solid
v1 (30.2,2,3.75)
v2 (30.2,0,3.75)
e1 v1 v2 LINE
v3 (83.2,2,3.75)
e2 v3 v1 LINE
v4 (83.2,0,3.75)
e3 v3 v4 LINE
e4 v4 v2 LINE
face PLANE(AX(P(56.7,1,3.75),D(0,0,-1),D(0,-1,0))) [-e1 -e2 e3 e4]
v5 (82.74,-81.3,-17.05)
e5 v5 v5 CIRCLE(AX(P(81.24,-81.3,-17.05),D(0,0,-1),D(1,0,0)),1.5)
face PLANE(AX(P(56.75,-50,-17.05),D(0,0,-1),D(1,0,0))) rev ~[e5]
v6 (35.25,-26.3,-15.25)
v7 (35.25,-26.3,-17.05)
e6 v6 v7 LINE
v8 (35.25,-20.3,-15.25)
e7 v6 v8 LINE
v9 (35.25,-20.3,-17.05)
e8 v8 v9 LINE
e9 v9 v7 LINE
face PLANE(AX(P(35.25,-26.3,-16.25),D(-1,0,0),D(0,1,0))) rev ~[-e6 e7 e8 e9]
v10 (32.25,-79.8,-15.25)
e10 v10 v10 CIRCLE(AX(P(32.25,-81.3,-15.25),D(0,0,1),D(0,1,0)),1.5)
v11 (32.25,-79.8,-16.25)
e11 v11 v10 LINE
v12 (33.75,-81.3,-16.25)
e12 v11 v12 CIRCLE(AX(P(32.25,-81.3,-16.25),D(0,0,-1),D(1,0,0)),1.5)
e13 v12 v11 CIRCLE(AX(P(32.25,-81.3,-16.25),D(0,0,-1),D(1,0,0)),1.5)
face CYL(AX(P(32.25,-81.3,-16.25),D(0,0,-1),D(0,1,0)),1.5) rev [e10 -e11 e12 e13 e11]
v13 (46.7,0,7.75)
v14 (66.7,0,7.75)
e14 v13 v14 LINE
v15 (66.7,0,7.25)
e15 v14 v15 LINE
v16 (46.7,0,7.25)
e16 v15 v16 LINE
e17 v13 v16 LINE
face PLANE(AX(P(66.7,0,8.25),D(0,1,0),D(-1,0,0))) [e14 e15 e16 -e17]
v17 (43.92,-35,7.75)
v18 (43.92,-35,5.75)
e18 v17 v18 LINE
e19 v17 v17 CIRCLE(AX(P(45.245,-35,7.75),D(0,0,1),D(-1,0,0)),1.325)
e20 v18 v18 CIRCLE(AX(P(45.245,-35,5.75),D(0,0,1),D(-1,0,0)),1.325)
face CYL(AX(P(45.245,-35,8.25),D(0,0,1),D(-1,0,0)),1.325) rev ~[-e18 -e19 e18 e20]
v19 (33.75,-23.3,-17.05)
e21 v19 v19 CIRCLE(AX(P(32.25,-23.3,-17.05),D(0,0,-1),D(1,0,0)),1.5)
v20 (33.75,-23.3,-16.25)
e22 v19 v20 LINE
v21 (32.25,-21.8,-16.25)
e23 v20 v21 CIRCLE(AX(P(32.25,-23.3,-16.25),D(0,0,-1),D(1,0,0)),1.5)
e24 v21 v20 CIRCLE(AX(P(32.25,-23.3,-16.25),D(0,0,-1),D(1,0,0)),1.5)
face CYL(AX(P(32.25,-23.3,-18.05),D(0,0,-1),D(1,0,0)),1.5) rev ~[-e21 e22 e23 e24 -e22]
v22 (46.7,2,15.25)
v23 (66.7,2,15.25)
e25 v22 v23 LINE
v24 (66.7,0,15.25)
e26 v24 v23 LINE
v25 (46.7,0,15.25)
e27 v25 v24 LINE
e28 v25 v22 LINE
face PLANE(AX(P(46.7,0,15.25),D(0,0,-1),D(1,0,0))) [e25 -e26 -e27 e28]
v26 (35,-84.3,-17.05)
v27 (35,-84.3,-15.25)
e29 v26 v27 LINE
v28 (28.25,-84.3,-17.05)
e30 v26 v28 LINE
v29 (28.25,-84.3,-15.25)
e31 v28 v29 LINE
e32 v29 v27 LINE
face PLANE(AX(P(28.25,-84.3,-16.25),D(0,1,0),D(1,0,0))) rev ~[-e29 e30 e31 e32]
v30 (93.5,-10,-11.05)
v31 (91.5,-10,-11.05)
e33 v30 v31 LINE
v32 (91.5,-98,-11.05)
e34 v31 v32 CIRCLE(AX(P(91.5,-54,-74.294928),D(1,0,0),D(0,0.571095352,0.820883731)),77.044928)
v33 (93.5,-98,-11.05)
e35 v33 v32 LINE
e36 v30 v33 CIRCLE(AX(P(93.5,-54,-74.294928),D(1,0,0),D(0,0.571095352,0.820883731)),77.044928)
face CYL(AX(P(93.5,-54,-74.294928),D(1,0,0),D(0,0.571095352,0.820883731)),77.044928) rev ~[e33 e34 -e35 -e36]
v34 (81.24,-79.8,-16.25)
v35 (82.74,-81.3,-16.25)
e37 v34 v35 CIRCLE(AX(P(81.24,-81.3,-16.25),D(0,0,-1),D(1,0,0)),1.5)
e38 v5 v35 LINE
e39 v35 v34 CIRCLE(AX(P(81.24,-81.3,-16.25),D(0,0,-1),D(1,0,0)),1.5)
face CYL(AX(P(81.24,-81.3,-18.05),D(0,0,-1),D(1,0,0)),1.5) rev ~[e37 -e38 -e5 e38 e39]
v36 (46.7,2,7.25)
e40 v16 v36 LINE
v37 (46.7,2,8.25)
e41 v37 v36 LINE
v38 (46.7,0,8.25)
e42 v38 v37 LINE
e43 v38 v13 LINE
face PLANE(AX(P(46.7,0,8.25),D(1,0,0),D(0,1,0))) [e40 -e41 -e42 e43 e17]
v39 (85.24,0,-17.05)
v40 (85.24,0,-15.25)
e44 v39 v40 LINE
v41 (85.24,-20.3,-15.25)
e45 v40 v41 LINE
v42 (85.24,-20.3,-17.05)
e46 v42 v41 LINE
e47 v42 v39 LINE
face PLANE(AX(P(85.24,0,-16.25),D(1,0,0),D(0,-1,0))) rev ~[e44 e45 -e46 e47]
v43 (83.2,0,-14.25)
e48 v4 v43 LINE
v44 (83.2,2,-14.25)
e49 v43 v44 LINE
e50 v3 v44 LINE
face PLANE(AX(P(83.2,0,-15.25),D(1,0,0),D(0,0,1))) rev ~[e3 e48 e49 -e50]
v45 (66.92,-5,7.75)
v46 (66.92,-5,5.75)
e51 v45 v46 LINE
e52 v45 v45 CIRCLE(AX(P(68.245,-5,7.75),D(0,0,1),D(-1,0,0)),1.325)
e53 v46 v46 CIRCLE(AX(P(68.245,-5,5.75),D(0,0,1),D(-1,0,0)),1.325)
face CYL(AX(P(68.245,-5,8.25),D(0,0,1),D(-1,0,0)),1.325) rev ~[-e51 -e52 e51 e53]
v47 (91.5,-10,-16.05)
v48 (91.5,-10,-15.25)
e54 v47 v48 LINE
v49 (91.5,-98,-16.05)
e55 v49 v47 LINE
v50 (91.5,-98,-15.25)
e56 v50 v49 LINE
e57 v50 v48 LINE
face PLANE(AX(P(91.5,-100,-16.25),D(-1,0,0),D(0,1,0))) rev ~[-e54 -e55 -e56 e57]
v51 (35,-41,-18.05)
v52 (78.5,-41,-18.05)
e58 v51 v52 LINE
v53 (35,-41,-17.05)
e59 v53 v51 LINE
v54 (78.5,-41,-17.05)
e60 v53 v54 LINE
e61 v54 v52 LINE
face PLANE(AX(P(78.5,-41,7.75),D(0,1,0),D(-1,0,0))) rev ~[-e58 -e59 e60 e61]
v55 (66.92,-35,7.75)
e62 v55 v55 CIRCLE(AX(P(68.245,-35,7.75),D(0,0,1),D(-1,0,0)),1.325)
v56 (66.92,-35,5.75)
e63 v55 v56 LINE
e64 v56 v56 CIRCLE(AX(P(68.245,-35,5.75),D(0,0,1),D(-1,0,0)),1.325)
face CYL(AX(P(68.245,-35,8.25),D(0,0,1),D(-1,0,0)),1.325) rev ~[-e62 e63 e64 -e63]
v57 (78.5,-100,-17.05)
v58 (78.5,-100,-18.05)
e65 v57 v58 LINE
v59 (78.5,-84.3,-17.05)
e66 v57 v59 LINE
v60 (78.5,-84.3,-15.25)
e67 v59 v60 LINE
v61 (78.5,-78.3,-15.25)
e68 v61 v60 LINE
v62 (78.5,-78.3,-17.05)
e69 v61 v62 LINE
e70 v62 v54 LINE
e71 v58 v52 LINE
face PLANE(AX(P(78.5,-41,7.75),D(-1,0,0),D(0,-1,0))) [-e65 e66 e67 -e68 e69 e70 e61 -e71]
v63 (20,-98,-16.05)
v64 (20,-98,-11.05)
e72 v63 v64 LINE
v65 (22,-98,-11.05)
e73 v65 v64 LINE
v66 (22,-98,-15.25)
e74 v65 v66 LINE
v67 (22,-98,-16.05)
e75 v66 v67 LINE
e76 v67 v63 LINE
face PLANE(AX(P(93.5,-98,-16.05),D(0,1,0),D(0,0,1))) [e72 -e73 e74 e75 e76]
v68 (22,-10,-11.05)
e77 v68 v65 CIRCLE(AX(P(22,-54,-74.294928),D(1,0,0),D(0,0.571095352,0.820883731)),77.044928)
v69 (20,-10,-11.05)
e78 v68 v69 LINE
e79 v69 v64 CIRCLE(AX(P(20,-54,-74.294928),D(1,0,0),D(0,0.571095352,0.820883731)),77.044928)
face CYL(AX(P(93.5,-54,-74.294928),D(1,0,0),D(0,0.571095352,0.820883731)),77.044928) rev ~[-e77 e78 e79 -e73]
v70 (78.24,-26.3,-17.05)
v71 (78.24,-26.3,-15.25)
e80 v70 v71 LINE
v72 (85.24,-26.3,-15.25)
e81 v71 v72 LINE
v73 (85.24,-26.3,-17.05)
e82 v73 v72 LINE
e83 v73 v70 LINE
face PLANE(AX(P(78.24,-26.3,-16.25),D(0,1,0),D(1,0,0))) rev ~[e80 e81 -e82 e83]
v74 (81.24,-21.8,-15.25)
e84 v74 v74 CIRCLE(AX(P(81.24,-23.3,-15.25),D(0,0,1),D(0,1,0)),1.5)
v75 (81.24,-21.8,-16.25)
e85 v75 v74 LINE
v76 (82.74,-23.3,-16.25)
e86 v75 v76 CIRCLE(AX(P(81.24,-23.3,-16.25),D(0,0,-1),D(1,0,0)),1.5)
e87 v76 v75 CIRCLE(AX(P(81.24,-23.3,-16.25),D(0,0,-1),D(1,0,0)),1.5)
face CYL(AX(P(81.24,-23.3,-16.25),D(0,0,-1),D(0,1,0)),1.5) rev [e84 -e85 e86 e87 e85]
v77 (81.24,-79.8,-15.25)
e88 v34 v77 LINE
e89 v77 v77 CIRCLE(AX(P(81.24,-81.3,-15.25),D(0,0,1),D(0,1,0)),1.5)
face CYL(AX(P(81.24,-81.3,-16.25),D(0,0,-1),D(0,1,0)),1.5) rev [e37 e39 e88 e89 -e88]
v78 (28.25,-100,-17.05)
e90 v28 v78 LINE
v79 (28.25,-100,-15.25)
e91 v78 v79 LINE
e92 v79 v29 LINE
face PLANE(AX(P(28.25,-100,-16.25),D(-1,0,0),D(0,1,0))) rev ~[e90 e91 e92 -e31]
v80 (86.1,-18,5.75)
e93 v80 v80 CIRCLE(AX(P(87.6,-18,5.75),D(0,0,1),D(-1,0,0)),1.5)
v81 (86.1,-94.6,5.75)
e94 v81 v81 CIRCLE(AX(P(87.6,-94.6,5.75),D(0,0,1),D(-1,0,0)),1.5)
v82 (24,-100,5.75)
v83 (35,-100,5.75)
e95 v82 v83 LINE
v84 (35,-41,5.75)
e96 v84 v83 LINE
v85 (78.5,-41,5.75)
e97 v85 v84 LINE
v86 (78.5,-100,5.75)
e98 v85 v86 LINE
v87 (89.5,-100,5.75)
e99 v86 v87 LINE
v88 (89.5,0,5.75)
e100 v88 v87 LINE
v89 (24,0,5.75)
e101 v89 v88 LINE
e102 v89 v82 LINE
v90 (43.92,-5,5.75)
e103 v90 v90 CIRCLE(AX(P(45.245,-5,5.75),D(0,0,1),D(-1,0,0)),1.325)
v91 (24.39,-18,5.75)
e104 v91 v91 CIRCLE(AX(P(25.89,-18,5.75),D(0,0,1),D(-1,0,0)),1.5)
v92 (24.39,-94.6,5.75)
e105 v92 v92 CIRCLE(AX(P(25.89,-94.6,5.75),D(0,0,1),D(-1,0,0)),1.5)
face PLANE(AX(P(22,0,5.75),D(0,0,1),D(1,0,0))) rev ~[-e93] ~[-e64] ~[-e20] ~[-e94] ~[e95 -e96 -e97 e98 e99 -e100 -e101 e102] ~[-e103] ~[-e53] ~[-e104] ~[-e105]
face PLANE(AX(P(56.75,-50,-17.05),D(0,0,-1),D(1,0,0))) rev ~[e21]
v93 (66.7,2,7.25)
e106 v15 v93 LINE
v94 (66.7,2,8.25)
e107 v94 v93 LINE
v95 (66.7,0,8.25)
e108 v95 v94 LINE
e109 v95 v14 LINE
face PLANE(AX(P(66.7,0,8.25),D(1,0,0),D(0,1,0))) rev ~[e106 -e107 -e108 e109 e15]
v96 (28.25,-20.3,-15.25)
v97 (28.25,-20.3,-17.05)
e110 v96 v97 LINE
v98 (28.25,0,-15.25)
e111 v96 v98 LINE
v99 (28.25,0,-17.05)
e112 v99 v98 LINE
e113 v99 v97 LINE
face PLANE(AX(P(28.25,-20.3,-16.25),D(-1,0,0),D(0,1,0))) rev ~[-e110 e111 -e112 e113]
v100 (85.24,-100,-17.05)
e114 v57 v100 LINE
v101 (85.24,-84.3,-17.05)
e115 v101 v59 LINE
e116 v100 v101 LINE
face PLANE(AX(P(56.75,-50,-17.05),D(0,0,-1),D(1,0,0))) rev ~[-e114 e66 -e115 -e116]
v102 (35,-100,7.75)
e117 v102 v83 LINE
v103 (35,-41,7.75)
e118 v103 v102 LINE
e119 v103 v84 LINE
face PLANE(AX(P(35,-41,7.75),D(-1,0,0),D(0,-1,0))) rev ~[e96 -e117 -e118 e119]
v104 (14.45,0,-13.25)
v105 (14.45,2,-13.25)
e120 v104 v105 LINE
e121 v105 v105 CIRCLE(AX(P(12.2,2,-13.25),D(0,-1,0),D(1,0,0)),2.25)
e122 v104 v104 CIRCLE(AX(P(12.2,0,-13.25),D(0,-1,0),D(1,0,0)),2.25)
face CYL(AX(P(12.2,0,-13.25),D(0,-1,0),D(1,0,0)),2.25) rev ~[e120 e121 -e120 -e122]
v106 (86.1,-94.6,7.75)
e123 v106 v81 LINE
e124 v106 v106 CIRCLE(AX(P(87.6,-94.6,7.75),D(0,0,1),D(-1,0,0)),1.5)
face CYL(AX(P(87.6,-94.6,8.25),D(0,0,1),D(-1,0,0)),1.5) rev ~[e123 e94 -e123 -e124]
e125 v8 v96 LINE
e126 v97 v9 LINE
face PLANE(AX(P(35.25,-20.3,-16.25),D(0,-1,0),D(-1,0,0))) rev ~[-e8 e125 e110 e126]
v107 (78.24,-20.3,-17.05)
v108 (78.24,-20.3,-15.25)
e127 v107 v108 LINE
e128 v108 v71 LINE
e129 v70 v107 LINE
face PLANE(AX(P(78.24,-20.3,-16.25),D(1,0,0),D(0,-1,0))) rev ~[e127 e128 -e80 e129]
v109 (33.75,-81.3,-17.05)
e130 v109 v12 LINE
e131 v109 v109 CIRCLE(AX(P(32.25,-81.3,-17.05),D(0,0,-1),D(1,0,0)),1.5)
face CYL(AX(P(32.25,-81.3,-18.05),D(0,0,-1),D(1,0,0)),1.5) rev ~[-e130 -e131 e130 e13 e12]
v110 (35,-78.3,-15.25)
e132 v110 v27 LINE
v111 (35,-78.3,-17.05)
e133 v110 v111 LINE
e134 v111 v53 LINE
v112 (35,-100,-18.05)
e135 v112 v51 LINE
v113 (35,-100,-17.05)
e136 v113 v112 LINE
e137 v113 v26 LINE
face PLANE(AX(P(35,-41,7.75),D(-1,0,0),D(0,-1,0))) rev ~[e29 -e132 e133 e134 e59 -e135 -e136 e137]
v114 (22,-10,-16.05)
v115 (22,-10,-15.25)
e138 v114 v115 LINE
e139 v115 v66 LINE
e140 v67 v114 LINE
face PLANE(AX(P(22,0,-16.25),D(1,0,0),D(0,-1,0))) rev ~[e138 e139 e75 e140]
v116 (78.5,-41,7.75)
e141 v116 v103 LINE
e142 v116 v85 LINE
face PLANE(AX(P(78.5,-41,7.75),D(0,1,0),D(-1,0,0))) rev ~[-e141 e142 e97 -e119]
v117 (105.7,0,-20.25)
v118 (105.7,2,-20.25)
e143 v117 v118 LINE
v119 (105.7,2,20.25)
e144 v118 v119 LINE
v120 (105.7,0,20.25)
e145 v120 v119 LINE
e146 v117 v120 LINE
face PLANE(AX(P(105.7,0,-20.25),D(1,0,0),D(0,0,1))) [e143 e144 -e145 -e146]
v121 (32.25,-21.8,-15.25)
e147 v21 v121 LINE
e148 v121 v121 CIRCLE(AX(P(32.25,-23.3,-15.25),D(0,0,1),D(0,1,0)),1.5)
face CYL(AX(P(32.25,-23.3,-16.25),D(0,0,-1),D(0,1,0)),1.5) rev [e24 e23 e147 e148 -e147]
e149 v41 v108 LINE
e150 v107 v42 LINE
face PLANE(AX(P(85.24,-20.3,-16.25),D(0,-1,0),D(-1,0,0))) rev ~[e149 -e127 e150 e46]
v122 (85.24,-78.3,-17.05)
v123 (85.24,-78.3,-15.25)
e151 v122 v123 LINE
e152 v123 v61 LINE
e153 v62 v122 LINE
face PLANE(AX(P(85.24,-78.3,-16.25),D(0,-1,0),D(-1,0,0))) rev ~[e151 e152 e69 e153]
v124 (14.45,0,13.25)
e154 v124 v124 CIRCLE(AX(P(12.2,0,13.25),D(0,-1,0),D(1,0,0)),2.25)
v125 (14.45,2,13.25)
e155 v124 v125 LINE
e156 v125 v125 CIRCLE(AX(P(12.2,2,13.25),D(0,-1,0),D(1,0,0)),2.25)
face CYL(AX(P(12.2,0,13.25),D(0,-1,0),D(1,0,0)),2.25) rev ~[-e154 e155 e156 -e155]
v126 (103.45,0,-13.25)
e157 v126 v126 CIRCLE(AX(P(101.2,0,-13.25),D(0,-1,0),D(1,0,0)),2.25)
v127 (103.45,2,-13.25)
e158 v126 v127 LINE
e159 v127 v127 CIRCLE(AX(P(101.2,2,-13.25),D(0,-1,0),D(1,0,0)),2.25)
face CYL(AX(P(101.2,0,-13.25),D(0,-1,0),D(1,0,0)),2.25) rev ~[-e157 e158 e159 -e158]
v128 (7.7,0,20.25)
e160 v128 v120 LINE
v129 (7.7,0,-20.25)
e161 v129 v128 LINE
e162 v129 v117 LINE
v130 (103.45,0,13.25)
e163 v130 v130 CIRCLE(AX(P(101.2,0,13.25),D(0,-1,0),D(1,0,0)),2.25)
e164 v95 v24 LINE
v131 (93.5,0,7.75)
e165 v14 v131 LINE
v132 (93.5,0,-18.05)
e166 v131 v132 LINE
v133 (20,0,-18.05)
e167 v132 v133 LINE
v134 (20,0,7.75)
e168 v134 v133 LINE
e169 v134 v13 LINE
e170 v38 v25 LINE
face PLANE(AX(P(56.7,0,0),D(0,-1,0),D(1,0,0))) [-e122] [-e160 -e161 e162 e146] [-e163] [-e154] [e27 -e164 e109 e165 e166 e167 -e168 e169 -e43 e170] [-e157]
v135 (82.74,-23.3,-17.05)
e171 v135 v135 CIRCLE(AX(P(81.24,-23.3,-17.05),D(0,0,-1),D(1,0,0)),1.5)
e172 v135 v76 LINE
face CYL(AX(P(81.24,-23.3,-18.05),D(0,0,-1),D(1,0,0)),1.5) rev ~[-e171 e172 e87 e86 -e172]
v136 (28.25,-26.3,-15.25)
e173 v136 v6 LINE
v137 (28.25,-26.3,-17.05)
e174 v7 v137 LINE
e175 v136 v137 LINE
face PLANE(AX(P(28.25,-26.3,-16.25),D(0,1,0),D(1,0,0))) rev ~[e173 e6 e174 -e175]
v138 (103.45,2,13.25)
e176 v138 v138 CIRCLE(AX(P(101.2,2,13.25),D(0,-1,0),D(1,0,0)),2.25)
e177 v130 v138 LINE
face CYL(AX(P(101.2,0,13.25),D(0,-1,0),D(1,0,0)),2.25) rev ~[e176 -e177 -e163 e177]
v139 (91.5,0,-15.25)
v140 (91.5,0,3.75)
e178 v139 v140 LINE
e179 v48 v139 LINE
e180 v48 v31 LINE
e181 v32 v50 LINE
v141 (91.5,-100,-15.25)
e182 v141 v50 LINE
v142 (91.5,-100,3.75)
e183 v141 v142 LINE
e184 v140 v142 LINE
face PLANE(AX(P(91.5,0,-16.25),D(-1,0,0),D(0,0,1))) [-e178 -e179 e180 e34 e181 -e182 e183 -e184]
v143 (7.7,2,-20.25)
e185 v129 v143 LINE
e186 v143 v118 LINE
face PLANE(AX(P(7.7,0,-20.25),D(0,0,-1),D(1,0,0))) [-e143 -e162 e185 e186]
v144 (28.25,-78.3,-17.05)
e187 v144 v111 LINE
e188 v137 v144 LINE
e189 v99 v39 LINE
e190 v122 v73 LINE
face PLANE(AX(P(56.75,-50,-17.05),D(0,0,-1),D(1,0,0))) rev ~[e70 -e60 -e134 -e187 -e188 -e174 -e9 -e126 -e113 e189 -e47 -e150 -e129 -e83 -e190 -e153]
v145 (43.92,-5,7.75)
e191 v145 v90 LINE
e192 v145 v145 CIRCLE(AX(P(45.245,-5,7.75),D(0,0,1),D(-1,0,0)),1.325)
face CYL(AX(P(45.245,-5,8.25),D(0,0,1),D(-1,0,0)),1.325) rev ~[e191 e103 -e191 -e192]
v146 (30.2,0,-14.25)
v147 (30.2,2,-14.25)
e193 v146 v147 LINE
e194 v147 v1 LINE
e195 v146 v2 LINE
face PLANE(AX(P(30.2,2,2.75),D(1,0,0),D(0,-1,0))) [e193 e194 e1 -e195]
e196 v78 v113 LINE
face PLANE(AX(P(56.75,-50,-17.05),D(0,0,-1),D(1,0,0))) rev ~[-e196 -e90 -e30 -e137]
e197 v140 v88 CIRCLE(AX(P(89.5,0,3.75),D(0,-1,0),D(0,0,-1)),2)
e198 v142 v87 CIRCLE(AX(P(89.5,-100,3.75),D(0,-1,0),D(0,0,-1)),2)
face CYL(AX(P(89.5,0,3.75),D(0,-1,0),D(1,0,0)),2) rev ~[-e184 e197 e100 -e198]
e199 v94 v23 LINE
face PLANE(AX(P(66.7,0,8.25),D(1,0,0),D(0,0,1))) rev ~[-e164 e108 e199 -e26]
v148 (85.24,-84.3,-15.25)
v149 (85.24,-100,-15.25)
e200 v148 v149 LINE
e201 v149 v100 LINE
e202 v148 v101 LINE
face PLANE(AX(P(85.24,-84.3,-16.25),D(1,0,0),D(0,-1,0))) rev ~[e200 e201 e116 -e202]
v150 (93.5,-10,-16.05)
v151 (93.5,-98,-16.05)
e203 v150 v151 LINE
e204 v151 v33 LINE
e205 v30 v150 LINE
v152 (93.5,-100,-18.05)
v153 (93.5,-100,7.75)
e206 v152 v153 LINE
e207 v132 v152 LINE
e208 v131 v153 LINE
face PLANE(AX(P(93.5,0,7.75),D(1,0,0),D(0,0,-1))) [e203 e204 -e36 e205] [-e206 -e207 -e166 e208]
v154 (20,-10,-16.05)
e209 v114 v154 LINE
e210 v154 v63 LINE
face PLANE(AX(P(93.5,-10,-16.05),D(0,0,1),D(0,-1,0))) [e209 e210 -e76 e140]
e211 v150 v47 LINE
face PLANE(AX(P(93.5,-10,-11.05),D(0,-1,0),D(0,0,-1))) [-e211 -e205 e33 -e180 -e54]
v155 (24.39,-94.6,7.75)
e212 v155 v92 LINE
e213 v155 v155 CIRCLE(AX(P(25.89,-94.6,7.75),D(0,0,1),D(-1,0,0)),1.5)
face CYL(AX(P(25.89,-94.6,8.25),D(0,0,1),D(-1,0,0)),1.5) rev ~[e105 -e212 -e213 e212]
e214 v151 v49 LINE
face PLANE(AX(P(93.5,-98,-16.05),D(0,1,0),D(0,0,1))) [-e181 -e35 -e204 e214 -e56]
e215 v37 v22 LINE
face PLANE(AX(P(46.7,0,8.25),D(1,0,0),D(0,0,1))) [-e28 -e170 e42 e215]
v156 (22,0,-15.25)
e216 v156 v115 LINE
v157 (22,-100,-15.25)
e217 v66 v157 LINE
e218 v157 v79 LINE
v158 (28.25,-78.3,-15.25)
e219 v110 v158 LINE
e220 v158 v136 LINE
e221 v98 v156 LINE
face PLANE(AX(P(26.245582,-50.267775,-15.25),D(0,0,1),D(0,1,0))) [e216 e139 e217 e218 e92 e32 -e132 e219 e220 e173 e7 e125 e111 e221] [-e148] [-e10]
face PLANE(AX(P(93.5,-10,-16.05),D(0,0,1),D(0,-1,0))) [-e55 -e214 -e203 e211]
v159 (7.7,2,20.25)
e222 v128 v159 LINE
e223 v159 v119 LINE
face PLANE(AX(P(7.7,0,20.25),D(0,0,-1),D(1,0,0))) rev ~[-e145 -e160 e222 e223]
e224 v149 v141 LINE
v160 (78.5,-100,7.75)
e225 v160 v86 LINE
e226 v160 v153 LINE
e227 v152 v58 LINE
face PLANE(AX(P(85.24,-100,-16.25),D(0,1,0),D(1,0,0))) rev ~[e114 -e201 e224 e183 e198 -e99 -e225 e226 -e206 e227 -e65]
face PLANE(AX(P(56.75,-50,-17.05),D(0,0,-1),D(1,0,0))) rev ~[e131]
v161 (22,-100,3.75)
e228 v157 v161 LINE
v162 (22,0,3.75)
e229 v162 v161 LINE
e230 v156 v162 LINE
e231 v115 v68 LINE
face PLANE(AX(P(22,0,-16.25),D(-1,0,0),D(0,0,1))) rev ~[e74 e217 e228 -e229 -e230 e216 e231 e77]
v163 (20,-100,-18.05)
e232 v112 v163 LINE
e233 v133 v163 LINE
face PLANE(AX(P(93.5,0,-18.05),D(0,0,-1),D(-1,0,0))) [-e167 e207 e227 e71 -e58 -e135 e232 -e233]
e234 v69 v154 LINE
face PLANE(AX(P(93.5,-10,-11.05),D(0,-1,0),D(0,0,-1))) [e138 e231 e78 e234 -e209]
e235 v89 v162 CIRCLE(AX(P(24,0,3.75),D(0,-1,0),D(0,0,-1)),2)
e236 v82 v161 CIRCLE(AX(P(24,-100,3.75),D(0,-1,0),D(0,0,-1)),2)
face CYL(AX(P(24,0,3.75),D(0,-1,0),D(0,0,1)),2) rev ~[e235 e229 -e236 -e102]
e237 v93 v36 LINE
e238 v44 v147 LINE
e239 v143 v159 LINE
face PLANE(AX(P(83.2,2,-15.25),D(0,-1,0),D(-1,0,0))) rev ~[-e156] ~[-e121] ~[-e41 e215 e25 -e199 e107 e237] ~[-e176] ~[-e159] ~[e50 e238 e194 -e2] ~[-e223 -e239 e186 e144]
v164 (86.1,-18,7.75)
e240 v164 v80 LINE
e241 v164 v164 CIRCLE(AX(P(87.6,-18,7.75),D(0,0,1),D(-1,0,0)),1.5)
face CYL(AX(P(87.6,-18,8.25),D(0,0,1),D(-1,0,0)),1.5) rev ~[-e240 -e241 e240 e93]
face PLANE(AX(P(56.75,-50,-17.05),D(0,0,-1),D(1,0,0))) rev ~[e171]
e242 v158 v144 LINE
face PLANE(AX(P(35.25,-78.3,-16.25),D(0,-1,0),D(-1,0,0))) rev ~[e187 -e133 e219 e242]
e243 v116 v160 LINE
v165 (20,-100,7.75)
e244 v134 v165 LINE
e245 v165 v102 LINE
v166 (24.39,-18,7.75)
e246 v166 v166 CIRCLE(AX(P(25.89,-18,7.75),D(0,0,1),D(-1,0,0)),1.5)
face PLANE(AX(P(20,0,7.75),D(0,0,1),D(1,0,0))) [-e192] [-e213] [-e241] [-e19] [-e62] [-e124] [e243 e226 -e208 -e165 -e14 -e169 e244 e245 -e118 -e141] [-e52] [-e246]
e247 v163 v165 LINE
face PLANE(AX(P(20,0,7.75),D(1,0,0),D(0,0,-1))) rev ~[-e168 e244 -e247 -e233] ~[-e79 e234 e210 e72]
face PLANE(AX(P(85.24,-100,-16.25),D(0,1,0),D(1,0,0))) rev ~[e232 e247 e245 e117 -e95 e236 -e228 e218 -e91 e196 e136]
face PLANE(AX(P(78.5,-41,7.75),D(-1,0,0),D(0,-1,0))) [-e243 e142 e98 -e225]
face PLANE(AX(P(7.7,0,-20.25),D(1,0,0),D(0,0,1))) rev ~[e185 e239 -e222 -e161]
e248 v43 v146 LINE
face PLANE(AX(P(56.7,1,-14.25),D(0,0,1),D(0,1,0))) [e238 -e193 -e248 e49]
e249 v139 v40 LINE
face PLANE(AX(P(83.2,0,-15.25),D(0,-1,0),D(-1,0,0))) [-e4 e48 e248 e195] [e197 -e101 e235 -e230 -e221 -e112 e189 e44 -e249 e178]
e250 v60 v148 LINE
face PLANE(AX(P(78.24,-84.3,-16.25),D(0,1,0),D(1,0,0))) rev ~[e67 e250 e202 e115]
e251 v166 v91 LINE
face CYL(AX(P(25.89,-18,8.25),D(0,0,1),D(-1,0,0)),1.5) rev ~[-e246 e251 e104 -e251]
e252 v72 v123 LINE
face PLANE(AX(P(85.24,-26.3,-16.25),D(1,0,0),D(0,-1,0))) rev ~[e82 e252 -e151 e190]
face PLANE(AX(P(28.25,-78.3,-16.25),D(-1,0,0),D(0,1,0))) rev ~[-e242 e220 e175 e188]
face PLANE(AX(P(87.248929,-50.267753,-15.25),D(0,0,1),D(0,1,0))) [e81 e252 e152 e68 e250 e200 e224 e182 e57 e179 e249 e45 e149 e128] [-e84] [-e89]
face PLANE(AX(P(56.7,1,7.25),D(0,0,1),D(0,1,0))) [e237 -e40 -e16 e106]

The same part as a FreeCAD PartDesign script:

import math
import FreeCAD as App
import Part
import Sketcher

V = App.Vector


def edges_at(feature, points):
    """Names of the edges that pass closest to the given points."""
    edges = feature.Shape.Edges
    near = lambda p: min(range(len(edges)), key=lambda i: edges[i].distToShape(Part.Vertex(*p))[0])
    return sorted({f"Edge{near(p) + 1}" for p in points})


def add_polygon(sketch, points):
    """Adds a closed chain of lines whose ends are joined by coincident constraints."""
    first, n = sketch.GeometryCount, len(points)
    for a, b in zip(points, points[1:] + points[:1]):
        sketch.addGeometry(Part.LineSegment(App.Vector(*a, 0), App.Vector(*b, 0)), False)
    for i in range(n):
        sketch.addConstraint(Sketcher.Constraint("Coincident", first + i, 2, first + (i + 1) % n, 1))

doc = App.newDocument("Part")
body = doc.addObject("PartDesign::Body", "Body")

# Sketch on XZ plane
sketch1 = body.newObject("Sketcher::SketchObject", "Sketch")
sketch1.AttachmentSupport = (doc.getObject("XZ_Plane"), [""])
sketch1.MapMode = "FlatFace"
add_polygon(sketch1, [(7.7, 20.2), (7.7, -20.2), (105.7, -20.2), (105.7, 20.2)])  # lines 0-3
sketch1.addGeometry(Part.Circle(V(12.2, -13.2, 0), V(0, 0, 1), 2.2), False)  # 4
add_polygon(sketch1, [(83.2, -15.2), (30.2, -15.2), (30.2, 2.8), (83.2, 2.8)])  # lines 5-8
sketch1.addGeometry(Part.Circle(V(101.2, -13.2, 0), V(0, 0, 1), 2.2), False)  # 9
sketch1.addGeometry(Part.Circle(V(12.2, 13.2, 0), V(0, 0, 1), 2.2), False)  # 10
add_polygon(sketch1, [(66.7, 8.2), (46.7, 8.2), (46.7, 15.2), (66.7, 15.2)])  # lines 11-14
sketch1.addGeometry(Part.Circle(V(101.2, 13.2, 0), V(0, 0, 1), 2.2), False)  # 15
sketch1.addConstraint([
    Sketcher.Constraint("Vertical", 0),
    Sketcher.Constraint("Horizontal", 1),
    Sketcher.Constraint("Vertical", 2),
    Sketcher.Constraint("Horizontal", 3),
    Sketcher.Constraint("Horizontal", 5),
    Sketcher.Constraint("Vertical", 6),
    Sketcher.Constraint("Horizontal", 7),
    Sketcher.Constraint("Vertical", 8),
    Sketcher.Constraint("Horizontal", 11),
    Sketcher.Constraint("Vertical", 12),
    Sketcher.Constraint("Horizontal", 13),
    Sketcher.Constraint("Vertical", 14),
    Sketcher.Constraint("Equal", 4, 9),
    Sketcher.Constraint("Equal", 9, 10),
    Sketcher.Constraint("Equal", 10, 15),
    Sketcher.Constraint("Symmetric", 4, 3, 10, 3, -1),
    Sketcher.Constraint("Symmetric", 9, 3, 15, 3, -1),
    Sketcher.Constraint("Horizontal", 4, 3, 9, 3),
    Sketcher.Constraint("Diameter", 4, 4.5),
    Sketcher.Constraint("DistanceX", 1, 1, 1, 2, 98.0),
    Sketcher.Constraint("DistanceX", 5, 2, 5, 1, 53.0),
    Sketcher.Constraint("DistanceX", 11, 2, 11, 1, 20.0),
    Sketcher.Constraint("DistanceY", 6, 1, 6, 2, 18.0),
    Sketcher.Constraint("DistanceY", 12, 1, 12, 2, 7.0),
    Sketcher.Constraint("DistanceY", 0, 2, 0, 1, 40.5),
    Sketcher.Constraint("DistanceX", 4, 3, 9, 3, 89.0),
    Sketcher.Constraint("DistanceY", 0, 2, 4, 3, 7.0),
    Sketcher.Constraint("DistanceY", 15, 3, 2, 2, 7.0),
    Sketcher.Constraint("DistanceX", 4, 3, 5, 2, 18.0),
    Sketcher.Constraint("DistanceY", 5, 2, 4, 3, 2.0),
    Sketcher.Constraint("DistanceY", 11, 2, 10, 3, 5.0),
    Sketcher.Constraint("DistanceX", -1, 1, 4, 3, 12.2),
    Sketcher.Constraint("DistanceX", -1, 1, 0, 2, 7.7),
    Sketcher.Constraint("DistanceX", -1, 1, 11, 2, 46.7),
])
pad1 = body.newObject("PartDesign::Pad", "Pad")
pad1.Profile = sketch1
pad1.Length = 2
pad1.Reversed = True

# Sketch on XZ plane
sketch2 = body.newObject("Sketcher::SketchObject", "Sketch001")
sketch2.AttachmentSupport = (doc.getObject("XZ_Plane"), [""])
sketch2.MapMode = "FlatFace"
add_polygon(sketch2, [(94, -18), (94, 8), (20, 8), (20, -18)])  # lines 0-3
add_polygon(sketch2, [(22, -16), (22, 6), (92, 6), (92, -16)])  # lines 4-7
sketch2.addConstraint([
    Sketcher.Constraint("Vertical", 0),
    Sketcher.Constraint("Horizontal", 1),
    Sketcher.Constraint("Vertical", 2),
    Sketcher.Constraint("Horizontal", 3),
    Sketcher.Constraint("Vertical", 4),
    Sketcher.Constraint("Horizontal", 5),
    Sketcher.Constraint("Vertical", 6),
    Sketcher.Constraint("Horizontal", 7),
    Sketcher.Constraint("DistanceY", 4, 1, 4, 2, 22.0),
    Sketcher.Constraint("DistanceX", 1, 2, 1, 1, 73.5),
    Sketcher.Constraint("DistanceX", 5, 1, 5, 2, 69.5),
    Sketcher.Constraint("DistanceY", 0, 1, 0, 2, 25.8),
    Sketcher.Constraint("DistanceX", -1, 1, 1, 2, 20.0),
    Sketcher.Constraint("DistanceX", -1, 1, 4, 2, 22.0),
    Sketcher.Constraint("DistanceY", 4, 2, 1, 2, 2.0),
    Sketcher.Constraint("DistanceY", -1, 1, 0, 2, 7.75),
])
pad2 = body.newObject("PartDesign::Pad", "Pad001")
pad2.Profile = sketch2
pad2.Length = 100

# Sketch on YZ plane
sketch3 = body.newObject("Sketcher::SketchObject", "Sketch002")
sketch3.AttachmentSupport = (doc.getObject("YZ_Plane"), [""])
sketch3.MapMode = "FlatFace"
sketch3.AttachmentOffset = App.Placement(V(0, 0, 93.5), App.Rotation())
sketch3.addGeometry([
    Part.LineSegment(V(-10, -16, 0), V(-10, -11, 0)),
    Part.ArcOfCircle(Part.Circle(V(-54, -74, 0), V(0, 0, 1), 77), math.radians(55), math.radians(125)),
    Part.LineSegment(V(-98, -11, 0), V(-98, -16, 0)),
    Part.LineSegment(V(-98, -16, 0), V(-10, -16, 0)),
], False)
sketch3.addConstraint([
    Sketcher.Constraint("Coincident", 0, 2, 1, 1),
    Sketcher.Constraint("Coincident", 1, 2, 2, 1),
    Sketcher.Constraint("Coincident", 2, 2, 3, 1),
    Sketcher.Constraint("Coincident", 3, 2, 0, 1),
    Sketcher.Constraint("Vertical", 0),
    Sketcher.Constraint("Vertical", 2),
    Sketcher.Constraint("Horizontal", 3),
    Sketcher.Constraint("Horizontal", 0, 2, 1, 2),
    Sketcher.Constraint("DistanceX", 3, 1, 3, 2, 88.0),
    Sketcher.Constraint("DistanceY", 0, 1, 0, 2, 5.0),
    Sketcher.Constraint("DistanceX", 1, 3, -1, 1, 54.0),
    Sketcher.Constraint("DistanceY", 0, 2, -1, 1, 11.05),
    Sketcher.Constraint("Radius", 1, 77.044928),
])
pocket1 = body.newObject("PartDesign::Pocket", "Pocket")
pocket1.Profile = sketch3
pocket1.Type = "ThroughAll"

# Sketch on XY plane
sketch4 = body.newObject("Sketcher::SketchObject", "Sketch003")
sketch4.AttachmentSupport = (doc.getObject("XY_Plane"), [""])
sketch4.MapMode = "FlatFace"
sketch4.AttachmentOffset = App.Placement(V(0, 0, 8.25), App.Rotation())
sketch4.addGeometry([
    Part.Circle(V(87.6, -94.6, 0), V(0, 0, 1), 1.5),  # 0
    Part.Circle(V(25.9, -94.6, 0), V(0, 0, 1), 1.5),  # 1
    Part.Circle(V(87.6, -18, 0), V(0, 0, 1), 1.5),  # 2
    Part.Circle(V(25.9, -18, 0), V(0, 0, 1), 1.5),  # 3
    Part.Circle(V(68.2, -5, 0), V(0, 0, 1), 1.3),  # 4
    Part.Circle(V(45.2, -5, 0), V(0, 0, 1), 1.3),  # 5
    Part.Circle(V(68.2, -35, 0), V(0, 0, 1), 1.3),  # 6
    Part.Circle(V(45.2, -35, 0), V(0, 0, 1), 1.3),  # 7
], False)
sketch4.addConstraint([
    Sketcher.Constraint("Equal", 0, 1),
    Sketcher.Constraint("Equal", 1, 2),
    Sketcher.Constraint("Equal", 2, 3),
    Sketcher.Constraint("Equal", 4, 5),
    Sketcher.Constraint("Equal", 5, 6),
    Sketcher.Constraint("Equal", 6, 7),
    Sketcher.Constraint("Horizontal", 0, 3, 1, 3),
    Sketcher.Constraint("Horizontal", 2, 3, 3, 3),
    Sketcher.Constraint("Horizontal", 4, 3, 5, 3),
    Sketcher.Constraint("Horizontal", 6, 3, 7, 3),
    Sketcher.Constraint("Vertical", 0, 3, 2, 3),
    Sketcher.Constraint("Vertical", 1, 3, 3, 3),
    Sketcher.Constraint("Vertical", 4, 3, 6, 3),
    Sketcher.Constraint("Vertical", 5, 3, 7, 3),
    Sketcher.Constraint("Diameter", 0, 3.0),
    Sketcher.Constraint("Diameter", 4, 2.65),
    Sketcher.Constraint("DistanceY", 2, 3, -1, 1, 18.0),
    Sketcher.Constraint("DistanceY", 4, 3, -1, 1, 5.0),
    Sketcher.Constraint("DistanceY", 6, 3, -1, 1, 35.0),
    Sketcher.Constraint("DistanceX", 5, 3, 4, 3, 23.0),
    Sketcher.Constraint("DistanceX", -1, 1, 0, 3, 87.6),
    Sketcher.Constraint("DistanceY", 0, 3, -1, 1, 94.6),
    Sketcher.Constraint("DistanceX", -1, 1, 1, 3, 25.89),
    Sketcher.Constraint("DistanceX", -1, 1, 4, 3, 68.245),
])
pocket2 = body.newObject("PartDesign::Pocket", "Pocket001")
pocket2.Profile = sketch4
pocket2.Length = 5

# Sketch on XY plane
sketch5 = body.newObject("Sketcher::SketchObject", "Sketch004")
sketch5.AttachmentSupport = (doc.getObject("XY_Plane"), [""])
sketch5.MapMode = "FlatFace"
sketch5.AttachmentOffset = App.Placement(V(0, 0, -18.05), App.Rotation())
sketch5.addGeometry([
    Part.Circle(V(81.2, -81.3, 0), V(0, 0, 1), 1.5),
    Part.Circle(V(81.2, -23.3, 0), V(0, 0, 1), 1.5),
    Part.Circle(V(32.2, -81.3, 0), V(0, 0, 1), 1.5),
    Part.Circle(V(32.2, -23.3, 0), V(0, 0, 1), 1.5),
], False)
sketch5.addConstraint([
    Sketcher.Constraint("Equal", 0, 1),
    Sketcher.Constraint("Equal", 1, 2),
    Sketcher.Constraint("Equal", 2, 3),
    Sketcher.Constraint("Horizontal", 0, 3, 2, 3),
    Sketcher.Constraint("Horizontal", 1, 3, 3, 3),
    Sketcher.Constraint("Vertical", 0, 3, 1, 3),
    Sketcher.Constraint("Vertical", 2, 3, 3, 3),
    Sketcher.Constraint("Diameter", 0, 3.0),
    Sketcher.Constraint("DistanceY", 0, 3, 1, 3, 58.0),
    Sketcher.Constraint("DistanceY", 0, 3, -1, 1, 81.3),
    Sketcher.Constraint("DistanceX", -1, 1, 0, 3, 81.24),
    Sketcher.Constraint("DistanceX", -1, 1, 2, 3, 32.25),
])
pocket3 = body.newObject("PartDesign::Pocket", "Pocket002")
pocket3.Profile = sketch5
pocket3.Length = 5
pocket3.Reversed = True

# Sketch on XY plane
sketch6 = body.newObject("Sketcher::SketchObject", "Sketch005")
sketch6.AttachmentSupport = (doc.getObject("XY_Plane"), [""])
sketch6.MapMode = "FlatFace"
sketch6.AttachmentOffset = App.Placement(V(0, 0, -18.05), App.Rotation())
add_polygon(sketch6, [(28, -84), (35, -84), (35, -78), (28, -78), (28, -26), (35, -26), (35, -20), (28, -20), (28, 0), (85, 0), (85, -20), (78, -20), (78, -26), (85, -26), (85, -78), (78, -78), (78, -84), (85, -84), (85, -100), (28, -100)])  # lines 0-19
sketch6.addConstraint([
    Sketcher.Constraint("Horizontal", 0),
    Sketcher.Constraint("Vertical", 1),
    Sketcher.Constraint("Horizontal", 2),
    Sketcher.Constraint("Vertical", 3),
    Sketcher.Constraint("Horizontal", 4),
    Sketcher.Constraint("Vertical", 5),
    Sketcher.Constraint("Horizontal", 6),
    Sketcher.Constraint("Vertical", 7),
    Sketcher.Constraint("Horizontal", 8),
    Sketcher.Constraint("Vertical", 9),
    Sketcher.Constraint("Horizontal", 10),
    Sketcher.Constraint("Vertical", 11),
    Sketcher.Constraint("Horizontal", 12),
    Sketcher.Constraint("Vertical", 13),
    Sketcher.Constraint("Horizontal", 14),
    Sketcher.Constraint("Vertical", 15),
    Sketcher.Constraint("Horizontal", 16),
    Sketcher.Constraint("Vertical", 17),
    Sketcher.Constraint("Horizontal", 18),
    Sketcher.Constraint("Vertical", 19),
    Sketcher.Constraint("PointOnObject", 7, 2, -1),
    Sketcher.Constraint("Horizontal", 6, 2, 9, 2),
    Sketcher.Constraint("Horizontal", 4, 2, 11, 2),
    Sketcher.Constraint("Horizontal", 2, 2, 13, 2),
    Sketcher.Constraint("Horizontal", 0, 2, 15, 2),
    Sketcher.Constraint("Vertical", 1, 2, 4, 2),
    Sketcher.Constraint("Vertical", 3, 2, 6, 2),
    Sketcher.Constraint("Vertical", 9, 2, 12, 2),
    Sketcher.Constraint("Vertical", 11, 2, 14, 2),
    Sketcher.Constraint("Vertical", 13, 2, 16, 2),
    Sketcher.Constraint("Vertical", 7, 2, 18, 2),
    Sketcher.Constraint("Equal", 6, 10),
    Sketcher.Constraint("Equal", 1, 5),
    Sketcher.Constraint("DistanceX", 0, 1, 0, 2, 7.0),
    Sketcher.Constraint("DistanceY", 1, 1, 1, 2, 6.0),
    Sketcher.Constraint("DistanceY", 3, 1, 3, 2, 52.0),
    Sketcher.Constraint("DistanceY", 7, 1, 7, 2, 20.3),
    Sketcher.Constraint("DistanceY", 17, 2, 17, 1, 15.7),
    Sketcher.Constraint("DistanceX", 8, 1, 8, 2, 56.99),
    Sketcher.Constraint("DistanceX", -1, 1, 0, 2, 35.25),
])
pocket4 = body.newObject("PartDesign::Pocket", "Pocket003")
pocket4.Profile = sketch6
pocket4.Length = 5
pocket4.Reversed = True

# Sketch on XY plane
sketch7 = body.newObject("Sketcher::SketchObject", "Sketch006")
sketch7.AttachmentSupport = (doc.getObject("XY_Plane"), [""])
sketch7.MapMode = "FlatFace"
sketch7.AttachmentOffset = App.Placement(V(0, 0, -18.05), App.Rotation())
add_polygon(sketch7, [(20, -100), (20, 0), (94, 0), (94, -100)])  # lines 0-3
sketch7.addConstraint([
    Sketcher.Constraint("Vertical", 0),
    Sketcher.Constraint("Horizontal", 1),
    Sketcher.Constraint("Vertical", 2),
    Sketcher.Constraint("Horizontal", 3),
    Sketcher.Constraint("PointOnObject", 0, 2, -1),
    Sketcher.Constraint("DistanceY", 0, 1, 0, 2, 100.0),
    Sketcher.Constraint("DistanceX", 1, 1, 1, 2, 73.5),
    Sketcher.Constraint("DistanceX", -1, 1, 0, 2, 20.0),
])
pad3 = body.newObject("PartDesign::Pad", "Pad002")
pad3.Profile = sketch7
pad3.Length = 1

# Sketch on XY plane
sketch8 = body.newObject("Sketcher::SketchObject", "Sketch007")
sketch8.AttachmentSupport = (doc.getObject("XY_Plane"), [""])
sketch8.MapMode = "FlatFace"
sketch8.AttachmentOffset = App.Placement(V(0, 0, -16.25), App.Rotation())
add_polygon(sketch8, [(28.2, 0), (22, 0), (22, -100), (28.2, -100), (28.2, -84.3), (35.2, -84.3), (35.2, -78.3), (28.2, -78.3), (28.2, -26.3), (35.2, -26.3), (35.2, -20.3), (28.2, -20.3)])  # lines 0-11
sketch8.addGeometry(Part.Circle(V(32.2, -81.3, 0), V(0, 0, 1), 1.5), False)  # 12
sketch8.addGeometry(Part.Circle(V(32.2, -23.3, 0), V(0, 0, 1), 1.5), False)  # 13
sketch8.addConstraint([
    Sketcher.Constraint("Horizontal", 0),
    Sketcher.Constraint("Vertical", 1),
    Sketcher.Constraint("Horizontal", 2),
    Sketcher.Constraint("Vertical", 3),
    Sketcher.Constraint("Horizontal", 4),
    Sketcher.Constraint("Vertical", 5),
    Sketcher.Constraint("Horizontal", 6),
    Sketcher.Constraint("Vertical", 7),
    Sketcher.Constraint("Horizontal", 8),
    Sketcher.Constraint("Vertical", 9),
    Sketcher.Constraint("Horizontal", 10),
    Sketcher.Constraint("Vertical", 11),
    Sketcher.Constraint("Equal", 12, 13),
    Sketcher.Constraint("PointOnObject", 0, 2, -1),
    Sketcher.Constraint("Vertical", 12, 3, 13, 3),
    Sketcher.Constraint("Vertical", 3, 2, 6, 2),
    Sketcher.Constraint("Vertical", 5, 2, 8, 2),
    Sketcher.Constraint("Vertical", 7, 2, 10, 2),
    Sketcher.Constraint("Equal", 5, 9),
    Sketcher.Constraint("Diameter", 12, 3.0),
    Sketcher.Constraint("DistanceX", 4, 1, 4, 2, 7.0),
    Sketcher.Constraint("DistanceY", 1, 2, 1, 1, 100.0),
    Sketcher.Constraint("DistanceY", 5, 1, 5, 2, 6.0),
    Sketcher.Constraint("DistanceY", 7, 1, 7, 2, 52.0),
    Sketcher.Constraint("DistanceY", 3, 1, 3, 2, 15.7),
    Sketcher.Constraint("DistanceX", -1, 1, 0, 2, 22.0),
    Sketcher.Constraint("DistanceY", 12, 3, 13, 3, 58.0),
    Sketcher.Constraint("DistanceX", 2, 2, 12, 3, 4.0),
    Sketcher.Constraint("DistanceY", 3, 2, 12, 3, 3.0),
    Sketcher.Constraint("DistanceX", 0, 2, 0, 1, 6.25),
])
pad4 = body.newObject("PartDesign::Pad", "Pad003")
pad4.Profile = sketch8
pad4.Length = 1

# Sketch on XY plane
sketch9 = body.newObject("Sketcher::SketchObject", "Sketch008")
sketch9.AttachmentSupport = (doc.getObject("XY_Plane"), [""])
sketch9.MapMode = "FlatFace"
sketch9.AttachmentOffset = App.Placement(V(0, 0, -16.25), App.Rotation())
add_polygon(sketch9, [(91.5, 0), (85.2, 0), (85.2, -20.3), (78.2, -20.3), (78.2, -26.3), (85.2, -26.3), (85.2, -78.3), (78.2, -78.3), (78.2, -84.3), (85.2, -84.3), (85.2, -100), (91.5, -100)])  # lines 0-11
sketch9.addGeometry(Part.Circle(V(81.2, -81.3, 0), V(0, 0, 1), 1.5), False)  # 12
sketch9.addGeometry(Part.Circle(V(81.2, -23.3, 0), V(0, 0, 1), 1.5), False)  # 13
sketch9.addConstraint([
    Sketcher.Constraint("Horizontal", 0),
    Sketcher.Constraint("Vertical", 1),
    Sketcher.Constraint("Horizontal", 2),
    Sketcher.Constraint("Vertical", 3),
    Sketcher.Constraint("Horizontal", 4),
    Sketcher.Constraint("Vertical", 5),
    Sketcher.Constraint("Horizontal", 6),
    Sketcher.Constraint("Vertical", 7),
    Sketcher.Constraint("Horizontal", 8),
    Sketcher.Constraint("Vertical", 9),
    Sketcher.Constraint("Horizontal", 10),
    Sketcher.Constraint("Vertical", 11),
    Sketcher.Constraint("Equal", 12, 13),
    Sketcher.Constraint("PointOnObject", 0, 2, -1),
    Sketcher.Constraint("Vertical", 12, 3, 13, 3),
    Sketcher.Constraint("Vertical", 1, 2, 4, 2),
    Sketcher.Constraint("Vertical", 3, 2, 6, 2),
    Sketcher.Constraint("Vertical", 5, 2, 8, 2),
    Sketcher.Constraint("Equal", 3, 7),
    Sketcher.Constraint("Diameter", 12, 3.0),
    Sketcher.Constraint("DistanceX", 2, 2, 2, 1, 7.0),
    Sketcher.Constraint("DistanceY", 3, 2, 3, 1, 6.0),
    Sketcher.Constraint("DistanceY", 5, 2, 5, 1, 52.0),
    Sketcher.Constraint("DistanceY", 11, 1, 11, 2, 100.0),
    Sketcher.Constraint("DistanceY", 1, 2, 1, 1, 20.3),
    Sketcher.Constraint("DistanceY", 12, 3, 13, 3, 58.0),
    Sketcher.Constraint("DistanceX", 13, 3, 0, 2, 4.0),
    Sketcher.Constraint("DistanceY", 13, 3, 1, 2, 3.0),
    Sketcher.Constraint("DistanceX", 0, 2, 0, 1, 6.26),
    Sketcher.Constraint("DistanceX", -1, 1, 10, 2, 91.5),
])
pad5 = body.newObject("PartDesign::Pad", "Pad004")
pad5.Profile = sketch9
pad5.Length = 1

# Sketch on XY plane
sketch10 = body.newObject("Sketcher::SketchObject", "Sketch009")
sketch10.AttachmentSupport = (doc.getObject("XY_Plane"), [""])
sketch10.MapMode = "FlatFace"
sketch10.AttachmentOffset = App.Placement(V(0, 0, 2.75), App.Rotation())
add_polygon(sketch10, [(30.2, 2), (83.2, 2), (83.2, 0), (30.2, 0)])  # lines 0-3
sketch10.addConstraint([
    Sketcher.Constraint("Horizontal", 0),
    Sketcher.Constraint("Vertical", 1),
    Sketcher.Constraint("Horizontal", 2),
    Sketcher.Constraint("Vertical", 3),
    Sketcher.Constraint("PointOnObject", 1, 2, -1),
    Sketcher.Constraint("DistanceX", 0, 1, 0, 2, 53.0),
    Sketcher.Constraint("DistanceY", 1, 2, 1, 1, 2.0),
    Sketcher.Constraint("DistanceX", -1, 1, 0, 2, 83.2),
])
pocket5 = body.newObject("PartDesign::Pocket", "Pocket004")
pocket5.Profile = sketch10
pocket5.Length = 1
pocket5.Reversed = True

# Sketch on XY plane
sketch11 = body.newObject("Sketcher::SketchObject", "Sketch010")
sketch11.AttachmentSupport = (doc.getObject("XY_Plane"), [""])
sketch11.MapMode = "FlatFace"
sketch11.AttachmentOffset = App.Placement(V(0, 0, -15.25), App.Rotation())
add_polygon(sketch11, [(30.2, 0), (83.2, 0), (83.2, 2), (30.2, 2)])  # lines 0-3
sketch11.addConstraint([
    Sketcher.Constraint("Horizontal", 0),
    Sketcher.Constraint("Vertical", 1),
    Sketcher.Constraint("Horizontal", 2),
    Sketcher.Constraint("Vertical", 3),
    Sketcher.Constraint("PointOnObject", 0, 2, -1),
    Sketcher.Constraint("DistanceX", 0, 1, 0, 2, 53.0),
    Sketcher.Constraint("DistanceY", 1, 1, 1, 2, 2.0),
    Sketcher.Constraint("DistanceX", -1, 1, 0, 2, 83.2),
])
pad6 = body.newObject("PartDesign::Pad", "Pad005")
pad6.Profile = sketch11
pad6.Length = 1

# Sketch on XY plane
sketch12 = body.newObject("Sketcher::SketchObject", "Sketch011")
sketch12.AttachmentSupport = (doc.getObject("XY_Plane"), [""])
sketch12.MapMode = "FlatFace"
sketch12.AttachmentOffset = App.Placement(V(0, 0, 7.75), App.Rotation())
add_polygon(sketch12, [(78, -100), (78, -41), (35, -41), (35, -100)])  # lines 0-3
sketch12.addConstraint([
    Sketcher.Constraint("Vertical", 0),
    Sketcher.Constraint("Horizontal", 1),
    Sketcher.Constraint("Vertical", 2),
    Sketcher.Constraint("Horizontal", 3),
    Sketcher.Constraint("DistanceY", 0, 1, 0, 2, 59.0),
    Sketcher.Constraint("DistanceX", 1, 2, 1, 1, 43.5),
    Sketcher.Constraint("DistanceY", 0, 2, -1, 1, 41.0),
    Sketcher.Constraint("DistanceX", -1, 1, 1, 2, 35.0),
])
pocket6 = body.newObject("PartDesign::Pocket", "Pocket005")
pocket6.Profile = sketch12
pocket6.Type = "ThroughAll"

# Sketch on XY plane
sketch13 = body.newObject("Sketcher::SketchObject", "Sketch012")
sketch13.AttachmentSupport = (doc.getObject("XY_Plane"), [""])
sketch13.MapMode = "FlatFace"
sketch13.AttachmentOffset = App.Placement(V(0, 0, 8.25), App.Rotation())
add_polygon(sketch13, [(46.7, 0), (66.7, 0), (66.7, 2), (46.7, 2)])  # lines 0-3
sketch13.addConstraint([
    Sketcher.Constraint("Horizontal", 0),
    Sketcher.Constraint("Vertical", 1),
    Sketcher.Constraint("Horizontal", 2),
    Sketcher.Constraint("Vertical", 3),
    Sketcher.Constraint("PointOnObject", 0, 2, -1),
    Sketcher.Constraint("DistanceX", 0, 1, 0, 2, 20.0),
    Sketcher.Constraint("DistanceY", 1, 1, 1, 2, 2.0),
    Sketcher.Constraint("DistanceX", -1, 1, 0, 2, 66.7),
])
pocket7 = body.newObject("PartDesign::Pocket", "Pocket006")
pocket7.Profile = sketch13
pocket7.Length = 1
doc.recompute()

fillet = body.newObject("PartDesign::Fillet", "Fillet")
fillet.Base = (pocket7, edges_at(pocket7, [(91.5, -50, 5.75), (22, -50, 5.75)]))
fillet.Radius = 2

doc.recompute()
